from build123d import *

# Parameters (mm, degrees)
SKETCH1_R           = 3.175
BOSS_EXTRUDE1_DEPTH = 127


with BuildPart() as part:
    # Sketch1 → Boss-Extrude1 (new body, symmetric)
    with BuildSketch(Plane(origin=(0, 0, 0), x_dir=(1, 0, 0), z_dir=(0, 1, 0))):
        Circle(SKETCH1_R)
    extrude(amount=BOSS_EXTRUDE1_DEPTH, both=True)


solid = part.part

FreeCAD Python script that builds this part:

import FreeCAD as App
import Part
import Sketcher

V = App.Vector
Q = App.Units.Quantity

doc = App.newDocument("Part")
body = doc.addObject("PartDesign::Body", "Body")

# Sketch on XZ plane
sketch1 = doc.addObject("Sketcher::SketchObject", "Sketch")
body.addObject(sketch1)
sketch1.AttachmentSupport = (doc.XZ_Plane, [""])
sketch1.MapMode = "FlatFace"
sketch1.addGeometry(Part.Circle(V(0, 0, 0), V(0, 0, 1), 3.175), False)
sketch1.addConstraint([
    Sketcher.Constraint("Coincident", 0, 3, -1, 1),
    Sketcher.Constraint("Diameter", 0, Q("0.25 in")),
])
pad1 = doc.addObject("PartDesign::Pad", "Pad")
body.addObject(pad1)
pad1.Profile = sketch1
pad1.Length = Q("10 in")
pad1.Midplane = True

doc.recompute()
